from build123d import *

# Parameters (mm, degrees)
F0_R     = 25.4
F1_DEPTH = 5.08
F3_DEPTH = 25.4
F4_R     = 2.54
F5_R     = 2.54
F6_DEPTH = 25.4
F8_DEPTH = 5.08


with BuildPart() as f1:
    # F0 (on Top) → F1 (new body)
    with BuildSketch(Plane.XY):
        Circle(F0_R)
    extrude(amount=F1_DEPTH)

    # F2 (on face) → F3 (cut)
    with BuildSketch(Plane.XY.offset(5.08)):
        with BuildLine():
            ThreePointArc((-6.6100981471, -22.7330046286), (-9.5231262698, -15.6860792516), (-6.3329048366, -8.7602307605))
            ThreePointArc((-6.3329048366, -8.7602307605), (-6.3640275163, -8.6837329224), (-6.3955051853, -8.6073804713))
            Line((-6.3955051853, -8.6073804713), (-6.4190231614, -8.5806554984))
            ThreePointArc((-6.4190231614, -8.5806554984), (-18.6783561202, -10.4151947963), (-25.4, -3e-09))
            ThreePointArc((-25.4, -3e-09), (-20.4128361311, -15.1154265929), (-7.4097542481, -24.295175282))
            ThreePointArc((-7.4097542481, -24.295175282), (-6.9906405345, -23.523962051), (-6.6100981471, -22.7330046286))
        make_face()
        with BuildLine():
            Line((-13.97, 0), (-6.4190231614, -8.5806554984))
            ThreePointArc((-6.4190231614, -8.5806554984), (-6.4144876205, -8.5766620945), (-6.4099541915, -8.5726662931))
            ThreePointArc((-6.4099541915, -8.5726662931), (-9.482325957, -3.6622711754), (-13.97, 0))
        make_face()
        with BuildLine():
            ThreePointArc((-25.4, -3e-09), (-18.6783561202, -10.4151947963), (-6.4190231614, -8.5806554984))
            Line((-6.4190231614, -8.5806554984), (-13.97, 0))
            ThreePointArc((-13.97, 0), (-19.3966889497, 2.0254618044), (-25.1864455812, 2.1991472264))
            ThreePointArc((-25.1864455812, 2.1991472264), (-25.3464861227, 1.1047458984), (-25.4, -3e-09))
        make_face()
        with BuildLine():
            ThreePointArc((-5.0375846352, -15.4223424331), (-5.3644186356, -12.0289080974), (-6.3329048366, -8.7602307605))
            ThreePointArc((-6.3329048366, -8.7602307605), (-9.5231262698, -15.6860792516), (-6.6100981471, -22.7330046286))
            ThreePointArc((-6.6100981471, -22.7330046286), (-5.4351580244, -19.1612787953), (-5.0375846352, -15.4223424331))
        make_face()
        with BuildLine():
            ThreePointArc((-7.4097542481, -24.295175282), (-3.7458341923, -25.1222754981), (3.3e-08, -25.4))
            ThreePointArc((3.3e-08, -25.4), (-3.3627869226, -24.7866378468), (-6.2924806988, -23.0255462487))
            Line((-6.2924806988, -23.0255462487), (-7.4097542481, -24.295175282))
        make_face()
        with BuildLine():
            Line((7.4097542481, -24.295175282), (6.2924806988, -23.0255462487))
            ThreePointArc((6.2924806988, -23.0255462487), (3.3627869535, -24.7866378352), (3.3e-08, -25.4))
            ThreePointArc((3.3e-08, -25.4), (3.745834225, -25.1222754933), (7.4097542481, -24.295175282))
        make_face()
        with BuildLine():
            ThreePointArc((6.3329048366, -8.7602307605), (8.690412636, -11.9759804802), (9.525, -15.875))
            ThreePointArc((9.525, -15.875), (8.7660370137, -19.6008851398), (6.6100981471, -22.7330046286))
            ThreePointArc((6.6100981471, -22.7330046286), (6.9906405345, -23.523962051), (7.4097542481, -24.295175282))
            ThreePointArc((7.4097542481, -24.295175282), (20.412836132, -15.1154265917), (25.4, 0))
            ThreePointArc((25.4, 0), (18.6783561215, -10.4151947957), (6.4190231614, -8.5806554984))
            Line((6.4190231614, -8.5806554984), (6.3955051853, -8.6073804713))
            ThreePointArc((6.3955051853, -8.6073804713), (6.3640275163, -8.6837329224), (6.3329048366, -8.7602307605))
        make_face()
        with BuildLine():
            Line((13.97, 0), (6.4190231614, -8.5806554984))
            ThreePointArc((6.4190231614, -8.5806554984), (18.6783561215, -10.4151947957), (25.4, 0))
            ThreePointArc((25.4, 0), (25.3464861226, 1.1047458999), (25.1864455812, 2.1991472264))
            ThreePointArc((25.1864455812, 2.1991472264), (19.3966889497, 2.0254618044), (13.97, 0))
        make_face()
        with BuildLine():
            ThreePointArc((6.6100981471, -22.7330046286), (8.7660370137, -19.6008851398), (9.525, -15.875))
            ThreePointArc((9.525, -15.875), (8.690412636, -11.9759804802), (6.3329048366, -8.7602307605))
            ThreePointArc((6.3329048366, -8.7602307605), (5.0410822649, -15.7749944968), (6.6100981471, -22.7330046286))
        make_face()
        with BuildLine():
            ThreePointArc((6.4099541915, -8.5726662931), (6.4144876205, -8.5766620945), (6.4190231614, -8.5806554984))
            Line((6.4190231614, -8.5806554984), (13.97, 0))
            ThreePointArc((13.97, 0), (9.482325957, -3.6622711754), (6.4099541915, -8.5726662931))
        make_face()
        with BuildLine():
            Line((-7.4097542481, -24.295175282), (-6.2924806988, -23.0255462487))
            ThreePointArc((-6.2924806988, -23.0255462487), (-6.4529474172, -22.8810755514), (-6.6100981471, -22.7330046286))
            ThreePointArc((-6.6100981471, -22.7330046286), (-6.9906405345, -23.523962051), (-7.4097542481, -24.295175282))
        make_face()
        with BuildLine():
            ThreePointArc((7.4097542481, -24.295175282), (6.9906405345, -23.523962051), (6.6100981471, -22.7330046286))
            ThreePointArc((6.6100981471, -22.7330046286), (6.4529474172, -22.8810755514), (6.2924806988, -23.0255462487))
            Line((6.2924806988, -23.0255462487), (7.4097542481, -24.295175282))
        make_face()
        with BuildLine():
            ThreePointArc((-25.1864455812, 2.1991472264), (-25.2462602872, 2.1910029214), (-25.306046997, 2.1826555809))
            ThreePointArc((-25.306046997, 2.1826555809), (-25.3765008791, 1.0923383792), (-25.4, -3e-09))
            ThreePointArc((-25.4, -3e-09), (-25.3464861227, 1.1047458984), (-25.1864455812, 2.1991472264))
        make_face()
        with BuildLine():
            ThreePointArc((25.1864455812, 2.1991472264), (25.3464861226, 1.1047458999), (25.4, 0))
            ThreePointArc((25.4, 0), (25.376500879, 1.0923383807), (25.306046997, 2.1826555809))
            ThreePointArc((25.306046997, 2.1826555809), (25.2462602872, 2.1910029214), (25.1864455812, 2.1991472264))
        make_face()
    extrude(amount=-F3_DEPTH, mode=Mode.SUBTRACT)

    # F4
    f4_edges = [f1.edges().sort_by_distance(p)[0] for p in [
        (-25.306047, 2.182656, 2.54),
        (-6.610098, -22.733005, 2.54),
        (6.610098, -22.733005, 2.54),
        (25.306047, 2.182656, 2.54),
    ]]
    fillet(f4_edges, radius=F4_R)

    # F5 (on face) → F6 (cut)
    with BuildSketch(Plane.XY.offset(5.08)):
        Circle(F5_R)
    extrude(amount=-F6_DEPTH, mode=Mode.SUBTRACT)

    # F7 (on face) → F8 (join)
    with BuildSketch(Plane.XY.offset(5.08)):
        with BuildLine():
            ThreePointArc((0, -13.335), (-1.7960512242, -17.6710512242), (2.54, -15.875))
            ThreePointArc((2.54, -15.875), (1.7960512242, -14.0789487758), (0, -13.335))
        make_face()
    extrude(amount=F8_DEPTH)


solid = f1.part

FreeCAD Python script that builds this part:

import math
import FreeCAD as App
import Part
import Sketcher

V = App.Vector
Q = App.Units.Quantity


def edges_at(feature, points):
    """Names of the edges that pass closest to the given points."""
    edges = feature.Shape.Edges
    near = lambda p: min(range(len(edges)), key=lambda i: edges[i].distToShape(Part.Vertex(*p))[0])
    return sorted({f"Edge{near(p) + 1}" for p in points})

doc = App.newDocument("Part")
params = doc.addObject("Spreadsheet::Sheet", "Params")
for row, (alias, value) in enumerate([
    ("sketch1_diameter", "2 in"),
    ("pad1_length", "0.2 in"),
    ("sketch2_radius", "1 in"),
    ("sketch2_radius2", "0.7 in"),
    ("sketch2_radius3", "0.375 in"),
    ("sketch2_height", "0.2700002 in"),
    ("pocket1_length", "1 in"),
    ("fillet_radius", "0.1 in"),
    ("sketch3_diameter", "0.2 in"),
    ("pocket2_length", "1 in"),
    ("sketch4_radius", "0.1 in"),
    ("pad2_length", "0.2 in"),
], start=1):
    params.set(f"A{row}", alias)
    params.set(f"B{row}", "=" + value)
    params.setAlias(f"B{row}", alias)

body = doc.addObject("PartDesign::Body", "Body")

# Sketch on XY plane
sketch1 = doc.addObject("Sketcher::SketchObject", "Sketch")
body.addObject(sketch1)
sketch1.AttachmentSupport = (doc.XY_Plane, [""])
sketch1.MapMode = "FlatFace"
sketch1.addGeometry(Part.Circle(V(0, 0, 0), V(0, 0, 1), 25), False)
sketch1.addConstraint([
    Sketcher.Constraint("Coincident", 0, 3, -1, 1),
    Sketcher.Constraint("Diameter", 0, Q("2 in")),
])
sketch1.setExpression("Constraints[1]", "Params.sketch1_diameter")
pad1 = doc.addObject("PartDesign::Pad", "Pad")
body.addObject(pad1)
pad1.Profile = sketch1
pad1.setExpression("Length", "Params.pad1_length")

# Sketch on XY plane
sketch2 = doc.addObject("Sketcher::SketchObject", "Sketch001")
body.addObject(sketch2)
sketch2.AttachmentSupport = (doc.XY_Plane, [""])
sketch2.MapMode = "FlatFace"
sketch2.AttachmentOffset = App.Placement(V(0, 0, 0.2 * 25.4), App.Rotation())
sketch2.addGeometry([
    Part.ArcOfCircle(Part.Circle(V(-22.818, -15.422, 0), V(0, 0, 1), 17.78), math.radians(22.01), math.radians(22.54)),  # 0
    Part.LineSegment(V(-6.396, -8.607, 0), V(-6.419, -8.581, 0)),  # 1
    Part.ArcOfCircle(Part.Circle(V(-13.97, 0, 0), V(0, 0, 1), 11.43), math.radians(-48.65), math.radians(-48.59)),  # 2
    Part.ArcOfCircle(Part.Circle(V(-22.818, -15.422, 0), V(0, 0, 1), 17.78), math.radians(23), math.radians(60)),  # 3
    Part.ArcOfCircle(Part.Circle(V(-22.818, -15.422, 0), V(0, 0, 1), 17.78), math.radians(60), math.radians(98)),  # 4
    Part.ArcOfCircle(Part.Circle(V(-22.818, -15.422, 0), V(0, 0, 1), 17.78), math.radians(97.66), math.radians(98.05)),  # 5
    Part.ArcOfCircle(Part.Circle(V(0, 0, 0), V(0, 0, 1), 25.4), math.radians(175.07), math.radians(180)),  # 6
    Part.ArcOfCircle(Part.Circle(V(0, 0, 0), V(0, 0, 1), 25.4), math.radians(-180), math.radians(-107)),  # 7
    Part.ArcOfCircle(Part.Circle(V(0, 0, 0), V(0, 0, 1), 25.4), math.radians(-106.96), math.radians(-90)),  # 8
    Part.ArcOfCircle(Part.Circle(V(0, -15.875, 0), V(0, 0, 1), 9.525), math.radians(-131), math.radians(-90)),  # 9
    Part.ArcOfCircle(Part.Circle(V(0, -15.875, 0), V(0, 0, 1), 9.525), math.radians(-133.95), math.radians(-131.35)),  # 10
    Part.ArcOfCircle(Part.Circle(V(-22.818, -15.422, 0), V(0, 0, 1), 17.78), math.radians(-24), math.radians(0)),  # 11
    Part.ArcOfCircle(Part.Circle(V(-22.818, -15.422, 0), V(0, 0, 1), 17.78), math.radians(0), math.radians(22)),  # 12
    Part.ArcOfCircle(Part.Circle(V(0, -15.875, 0), V(0, 0, 1), 9.525), math.radians(-90), math.radians(-49)),  # 13
    Part.ArcOfCircle(Part.Circle(V(0, 0, 0), V(0, 0, 1), 25.4), math.radians(-90), math.radians(-73.04)),  # 14
    Part.ArcOfCircle(Part.Circle(V(0, 0, 0), V(0, 0, 1), 25.4), math.radians(-73), math.radians(0)),  # 15
    Part.ArcOfCircle(Part.Circle(V(0, 0, 0), V(0, 0, 1), 25.4), math.radians(0), math.radians(4.93)),  # 16
    Part.ArcOfCircle(Part.Circle(V(22.818, -15.422, 0), V(0, 0, 1), 17.78), math.radians(81.95), math.radians(82.34)),  # 17
    Part.ArcOfCircle(Part.Circle(V(22.818, -15.422, 0), V(0, 0, 1), 17.78), math.radians(82), math.radians(120)),  # 18
    Part.ArcOfCircle(Part.Circle(V(22.818, -15.422, 0), V(0, 0, 1), 17.78), math.radians(120), math.radians(157)),  # 19
    Part.ArcOfCircle(Part.Circle(V(13.97, 0, 0), V(0, 0, 1), 11.43), math.radians(-131.41), math.radians(-131.35)),  # 20
    Part.LineSegment(V(6.419, -8.581, 0), V(6.396, -8.607, 0)),  # 21
    Part.ArcOfCircle(Part.Circle(V(22.818, -15.422, 0), V(0, 0, 1), 17.78), math.radians(157.46), math.radians(157.99)),  # 22
    Part.ArcOfCircle(Part.Circle(V(22.818, -15.422, 0), V(0, 0, 1), 17.78), math.radians(158), math.radians(204)),  # 23
    Part.ArcOfCircle(Part.Circle(V(0, -15.875, 0), V(0, 0, 1), 9.525), math.radians(-48.65), math.radians(-46.05)),  # 24
], False)
sketch2.addConstraint([
    Sketcher.Constraint("Coincident", 0, 2, 1, 1),
    Sketcher.Constraint("Coincident", 1, 2, 2, 1),
    Sketcher.Constraint("Coincident", 2, 2, 3, 1),
    Sketcher.Constraint("Tangent", 3, 2, 4, 1),
    Sketcher.Constraint("Tangent", 4, 2, 5, 1),
    Sketcher.Constraint("Coincident", 5, 2, 6, 1),
    Sketcher.Constraint("Tangent", 6, 2, 7, 1),
    Sketcher.Constraint("Tangent", 7, 2, 8, 1),
    Sketcher.Constraint("Tangent", 8, 2, 9, 2),
    Sketcher.Constraint("Tangent", 9, 1, 10, 2),
    Sketcher.Constraint("Coincident", 10, 1, 11, 1),
    Sketcher.Constraint("Tangent", 11, 2, 12, 1),
    Sketcher.Constraint("Tangent", 12, 2, 0, 1),
    Sketcher.Constraint("Tangent", 13, 1, 14, 1),
    Sketcher.Constraint("Tangent", 14, 2, 15, 1),
    Sketcher.Constraint("Tangent", 15, 2, 16, 1),
    Sketcher.Constraint("Coincident", 16, 2, 17, 1),
    Sketcher.Constraint("Tangent", 17, 2, 18, 1),
    Sketcher.Constraint("Tangent", 18, 2, 19, 1),
    Sketcher.Constraint("Coincident", 19, 2, 20, 1),
    Sketcher.Constraint("Coincident", 20, 2, 21, 1),
    Sketcher.Constraint("Coincident", 21, 2, 22, 1),
    Sketcher.Constraint("Tangent", 22, 2, 23, 1),
    Sketcher.Constraint("Coincident", 23, 2, 24, 2),
    Sketcher.Constraint("Tangent", 24, 1, 13, 2),
    Sketcher.Constraint("Coincident", 6, 3, -1, 1),
    Sketcher.Constraint("Coincident", 8, 3, -1, 1),
    Sketcher.Constraint("Coincident", 14, 3, -1, 1),
    Sketcher.Constraint("Coincident", 16, 3, -1, 1),
    Sketcher.Constraint("Coincident", 3, 3, 0, 3),
    Sketcher.Constraint("Coincident", 5, 3, 0, 3),
    Sketcher.Constraint("Coincident", 11, 3, 0, 3),
    Sketcher.Constraint("Coincident", 13, 3, 9, 3),
    Sketcher.Constraint("Coincident", 19, 3, 17, 3),
    Sketcher.Constraint("Coincident", 22, 3, 17, 3),
    Sketcher.Constraint("Equal", 9, 10),
    Sketcher.Constraint("Equal", 4, 11),
    Sketcher.Constraint("Equal", 10, 13),
    Sketcher.Constraint("Equal", 5, 17),
    Sketcher.Constraint("Equal", 2, 20),
    Sketcher.Constraint("Equal", 0, 22),
    Sketcher.Constraint("Equal", 19, 23),
    Sketcher.Constraint("Equal", 13, 24),
    Sketcher.Constraint("Symmetric", 3, 2, 18, 2, -1, 1),
    Sketcher.Constraint("Symmetric", 0, 3, 17, 3, -2),
    Sketcher.Constraint("Symmetric", 2, 3, 20, 3, -2),
    Sketcher.Constraint("Symmetric", 9, 1, 24, 1, -2),
    Sketcher.Constraint("PointOnObject", 6, 2, -1),
    Sketcher.Constraint("PointOnObject", 15, 2, -1),
    Sketcher.Constraint("Horizontal", 23, 3, 11, 2),
    Sketcher.Constraint("Horizontal", 7, 2, 14, 2),
    Sketcher.Constraint("Horizontal", 4, 2, 17, 2),
    Sketcher.Constraint("Horizontal", 1, 2, 20, 2),
    Sketcher.Constraint("Horizontal", 0, 2, 21, 2),
    Sketcher.Constraint("Horizontal", 12, 2, 22, 2),
    Sketcher.Constraint("Radius", 6, Q("1 in")),
    Sketcher.Constraint("Radius", 3, Q("0.7 in")),
    Sketcher.Constraint("Radius", 9, Q("0.375 in")),
    Sketcher.Constraint("DistanceX", 3, 2, -1, 1, Q("0.55 in")),
    Sketcher.Constraint("DistanceY", 10, 1, 10, 3, Q("0.2700002 in")),
    Sketcher.Constraint("Radius", 2, Q("11.429804 mm")),
    Sketcher.Constraint("Distance", 1, Q("0.035599 mm")),
    Sketcher.Constraint("DistanceY", 5, 3, 2, 3, Q("15.422198 mm")),
    Sketcher.Constraint("DistanceX", 5, 2, 4, 2, Q("0.119601 mm")),
    Sketcher.Constraint("DistanceX", 0, 2, 12, 2, Q("0.0626 mm")),
    Sketcher.Constraint("DistanceX", 2, 3, -1, 1, Q("13.96987 mm")),
    Sketcher.Constraint("DistanceX", 9, 1, -1, 1, Q("6.292481 mm")),
    Sketcher.Constraint("DistanceX", 1, 2, 2, 2, Q("0.009069 mm")),
    Sketcher.Constraint("DistanceX", 7, 2, 0, 2, Q("1.014249 mm")),
])
sketch2.setExpression("Constraints[55]", "Params.sketch2_radius")
sketch2.setExpression("Constraints[56]", "Params.sketch2_radius2")
sketch2.setExpression("Constraints[57]", "Params.sketch2_radius3")
sketch2.setExpression("Constraints[59]", "Params.sketch2_height")
pocket1 = doc.addObject("PartDesign::Pocket", "Pocket")
body.addObject(pocket1)
pocket1.Profile = sketch2
pocket1.setExpression("Length", "Params.pocket1_length")
doc.recompute()

fillet = doc.addObject("PartDesign::Fillet", "Fillet")
body.addObject(fillet)
fillet.Base = (pocket1, edges_at(pocket1, [
    (-25.306, 2.183, 2.54),
    (-6.61, -22.733, 2.54),
    (6.61, -22.733, 2.54),
    (25.306, 2.183, 2.54),
]))
fillet.setExpression("Radius", "Params.fillet_radius")

# Sketch on XY plane
sketch3 = doc.addObject("Sketcher::SketchObject", "Sketch002")
body.addObject(sketch3)
sketch3.AttachmentSupport = (doc.XY_Plane, [""])
sketch3.MapMode = "FlatFace"
sketch3.AttachmentOffset = App.Placement(V(0, 0, 0.2 * 25.4), App.Rotation())
sketch3.addGeometry(Part.Circle(V(0, 0, 0), V(0, 0, 1), 2.5), False)
sketch3.addConstraint([
    Sketcher.Constraint("Coincident", 0, 3, -1, 1),
    Sketcher.Constraint("Diameter", 0, Q("0.2 in")),
])
sketch3.setExpression("Constraints[1]", "Params.sketch3_diameter")
pocket2 = doc.addObject("PartDesign::Pocket", "Pocket001")
body.addObject(pocket2)
pocket2.Profile = sketch3
pocket2.setExpression("Length", "Params.pocket2_length")

# Sketch on XY plane
sketch4 = doc.addObject("Sketcher::SketchObject", "Sketch003")
body.addObject(sketch4)
sketch4.AttachmentSupport = (doc.XY_Plane, [""])
sketch4.MapMode = "FlatFace"
sketch4.AttachmentOffset = App.Placement(V(0, 0, 0.2 * 25.4), App.Rotation())
sketch4.addGeometry([
    Part.ArcOfCircle(Part.Circle(V(0, -15.9, 0), V(0, 0, 1), 2.5), math.radians(90), math.radians(360)),
    Part.ArcOfCircle(Part.Circle(V(0, -15.9, 0), V(0, 0, 1), 2.5), math.radians(0), math.radians(90)),
], False)
sketch4.addConstraint([
    Sketcher.Constraint("Tangent", 0, 1, 1, 2),
    Sketcher.Constraint("Coincident", 1, 1, 0, 2),
    Sketcher.Constraint("PointOnObject", 0, 3, -2),
    Sketcher.Constraint("PointOnObject", 0, 1, -2),
    Sketcher.Constraint("Horizontal", 0, 3, 1, 1),
    Sketcher.Constraint("Radius", 0, Q("0.1 in")),
    Sketcher.Constraint("DistanceY", 0, 3, -1, 1, Q("0.625 in")),
])
sketch4.setExpression("Constraints[5]", "Params.sketch4_radius")
pad2 = doc.addObject("PartDesign::Pad", "Pad001")
body.addObject(pad2)
pad2.Profile = sketch4
pad2.setExpression("Length", "Params.pad2_length")

doc.recompute()
